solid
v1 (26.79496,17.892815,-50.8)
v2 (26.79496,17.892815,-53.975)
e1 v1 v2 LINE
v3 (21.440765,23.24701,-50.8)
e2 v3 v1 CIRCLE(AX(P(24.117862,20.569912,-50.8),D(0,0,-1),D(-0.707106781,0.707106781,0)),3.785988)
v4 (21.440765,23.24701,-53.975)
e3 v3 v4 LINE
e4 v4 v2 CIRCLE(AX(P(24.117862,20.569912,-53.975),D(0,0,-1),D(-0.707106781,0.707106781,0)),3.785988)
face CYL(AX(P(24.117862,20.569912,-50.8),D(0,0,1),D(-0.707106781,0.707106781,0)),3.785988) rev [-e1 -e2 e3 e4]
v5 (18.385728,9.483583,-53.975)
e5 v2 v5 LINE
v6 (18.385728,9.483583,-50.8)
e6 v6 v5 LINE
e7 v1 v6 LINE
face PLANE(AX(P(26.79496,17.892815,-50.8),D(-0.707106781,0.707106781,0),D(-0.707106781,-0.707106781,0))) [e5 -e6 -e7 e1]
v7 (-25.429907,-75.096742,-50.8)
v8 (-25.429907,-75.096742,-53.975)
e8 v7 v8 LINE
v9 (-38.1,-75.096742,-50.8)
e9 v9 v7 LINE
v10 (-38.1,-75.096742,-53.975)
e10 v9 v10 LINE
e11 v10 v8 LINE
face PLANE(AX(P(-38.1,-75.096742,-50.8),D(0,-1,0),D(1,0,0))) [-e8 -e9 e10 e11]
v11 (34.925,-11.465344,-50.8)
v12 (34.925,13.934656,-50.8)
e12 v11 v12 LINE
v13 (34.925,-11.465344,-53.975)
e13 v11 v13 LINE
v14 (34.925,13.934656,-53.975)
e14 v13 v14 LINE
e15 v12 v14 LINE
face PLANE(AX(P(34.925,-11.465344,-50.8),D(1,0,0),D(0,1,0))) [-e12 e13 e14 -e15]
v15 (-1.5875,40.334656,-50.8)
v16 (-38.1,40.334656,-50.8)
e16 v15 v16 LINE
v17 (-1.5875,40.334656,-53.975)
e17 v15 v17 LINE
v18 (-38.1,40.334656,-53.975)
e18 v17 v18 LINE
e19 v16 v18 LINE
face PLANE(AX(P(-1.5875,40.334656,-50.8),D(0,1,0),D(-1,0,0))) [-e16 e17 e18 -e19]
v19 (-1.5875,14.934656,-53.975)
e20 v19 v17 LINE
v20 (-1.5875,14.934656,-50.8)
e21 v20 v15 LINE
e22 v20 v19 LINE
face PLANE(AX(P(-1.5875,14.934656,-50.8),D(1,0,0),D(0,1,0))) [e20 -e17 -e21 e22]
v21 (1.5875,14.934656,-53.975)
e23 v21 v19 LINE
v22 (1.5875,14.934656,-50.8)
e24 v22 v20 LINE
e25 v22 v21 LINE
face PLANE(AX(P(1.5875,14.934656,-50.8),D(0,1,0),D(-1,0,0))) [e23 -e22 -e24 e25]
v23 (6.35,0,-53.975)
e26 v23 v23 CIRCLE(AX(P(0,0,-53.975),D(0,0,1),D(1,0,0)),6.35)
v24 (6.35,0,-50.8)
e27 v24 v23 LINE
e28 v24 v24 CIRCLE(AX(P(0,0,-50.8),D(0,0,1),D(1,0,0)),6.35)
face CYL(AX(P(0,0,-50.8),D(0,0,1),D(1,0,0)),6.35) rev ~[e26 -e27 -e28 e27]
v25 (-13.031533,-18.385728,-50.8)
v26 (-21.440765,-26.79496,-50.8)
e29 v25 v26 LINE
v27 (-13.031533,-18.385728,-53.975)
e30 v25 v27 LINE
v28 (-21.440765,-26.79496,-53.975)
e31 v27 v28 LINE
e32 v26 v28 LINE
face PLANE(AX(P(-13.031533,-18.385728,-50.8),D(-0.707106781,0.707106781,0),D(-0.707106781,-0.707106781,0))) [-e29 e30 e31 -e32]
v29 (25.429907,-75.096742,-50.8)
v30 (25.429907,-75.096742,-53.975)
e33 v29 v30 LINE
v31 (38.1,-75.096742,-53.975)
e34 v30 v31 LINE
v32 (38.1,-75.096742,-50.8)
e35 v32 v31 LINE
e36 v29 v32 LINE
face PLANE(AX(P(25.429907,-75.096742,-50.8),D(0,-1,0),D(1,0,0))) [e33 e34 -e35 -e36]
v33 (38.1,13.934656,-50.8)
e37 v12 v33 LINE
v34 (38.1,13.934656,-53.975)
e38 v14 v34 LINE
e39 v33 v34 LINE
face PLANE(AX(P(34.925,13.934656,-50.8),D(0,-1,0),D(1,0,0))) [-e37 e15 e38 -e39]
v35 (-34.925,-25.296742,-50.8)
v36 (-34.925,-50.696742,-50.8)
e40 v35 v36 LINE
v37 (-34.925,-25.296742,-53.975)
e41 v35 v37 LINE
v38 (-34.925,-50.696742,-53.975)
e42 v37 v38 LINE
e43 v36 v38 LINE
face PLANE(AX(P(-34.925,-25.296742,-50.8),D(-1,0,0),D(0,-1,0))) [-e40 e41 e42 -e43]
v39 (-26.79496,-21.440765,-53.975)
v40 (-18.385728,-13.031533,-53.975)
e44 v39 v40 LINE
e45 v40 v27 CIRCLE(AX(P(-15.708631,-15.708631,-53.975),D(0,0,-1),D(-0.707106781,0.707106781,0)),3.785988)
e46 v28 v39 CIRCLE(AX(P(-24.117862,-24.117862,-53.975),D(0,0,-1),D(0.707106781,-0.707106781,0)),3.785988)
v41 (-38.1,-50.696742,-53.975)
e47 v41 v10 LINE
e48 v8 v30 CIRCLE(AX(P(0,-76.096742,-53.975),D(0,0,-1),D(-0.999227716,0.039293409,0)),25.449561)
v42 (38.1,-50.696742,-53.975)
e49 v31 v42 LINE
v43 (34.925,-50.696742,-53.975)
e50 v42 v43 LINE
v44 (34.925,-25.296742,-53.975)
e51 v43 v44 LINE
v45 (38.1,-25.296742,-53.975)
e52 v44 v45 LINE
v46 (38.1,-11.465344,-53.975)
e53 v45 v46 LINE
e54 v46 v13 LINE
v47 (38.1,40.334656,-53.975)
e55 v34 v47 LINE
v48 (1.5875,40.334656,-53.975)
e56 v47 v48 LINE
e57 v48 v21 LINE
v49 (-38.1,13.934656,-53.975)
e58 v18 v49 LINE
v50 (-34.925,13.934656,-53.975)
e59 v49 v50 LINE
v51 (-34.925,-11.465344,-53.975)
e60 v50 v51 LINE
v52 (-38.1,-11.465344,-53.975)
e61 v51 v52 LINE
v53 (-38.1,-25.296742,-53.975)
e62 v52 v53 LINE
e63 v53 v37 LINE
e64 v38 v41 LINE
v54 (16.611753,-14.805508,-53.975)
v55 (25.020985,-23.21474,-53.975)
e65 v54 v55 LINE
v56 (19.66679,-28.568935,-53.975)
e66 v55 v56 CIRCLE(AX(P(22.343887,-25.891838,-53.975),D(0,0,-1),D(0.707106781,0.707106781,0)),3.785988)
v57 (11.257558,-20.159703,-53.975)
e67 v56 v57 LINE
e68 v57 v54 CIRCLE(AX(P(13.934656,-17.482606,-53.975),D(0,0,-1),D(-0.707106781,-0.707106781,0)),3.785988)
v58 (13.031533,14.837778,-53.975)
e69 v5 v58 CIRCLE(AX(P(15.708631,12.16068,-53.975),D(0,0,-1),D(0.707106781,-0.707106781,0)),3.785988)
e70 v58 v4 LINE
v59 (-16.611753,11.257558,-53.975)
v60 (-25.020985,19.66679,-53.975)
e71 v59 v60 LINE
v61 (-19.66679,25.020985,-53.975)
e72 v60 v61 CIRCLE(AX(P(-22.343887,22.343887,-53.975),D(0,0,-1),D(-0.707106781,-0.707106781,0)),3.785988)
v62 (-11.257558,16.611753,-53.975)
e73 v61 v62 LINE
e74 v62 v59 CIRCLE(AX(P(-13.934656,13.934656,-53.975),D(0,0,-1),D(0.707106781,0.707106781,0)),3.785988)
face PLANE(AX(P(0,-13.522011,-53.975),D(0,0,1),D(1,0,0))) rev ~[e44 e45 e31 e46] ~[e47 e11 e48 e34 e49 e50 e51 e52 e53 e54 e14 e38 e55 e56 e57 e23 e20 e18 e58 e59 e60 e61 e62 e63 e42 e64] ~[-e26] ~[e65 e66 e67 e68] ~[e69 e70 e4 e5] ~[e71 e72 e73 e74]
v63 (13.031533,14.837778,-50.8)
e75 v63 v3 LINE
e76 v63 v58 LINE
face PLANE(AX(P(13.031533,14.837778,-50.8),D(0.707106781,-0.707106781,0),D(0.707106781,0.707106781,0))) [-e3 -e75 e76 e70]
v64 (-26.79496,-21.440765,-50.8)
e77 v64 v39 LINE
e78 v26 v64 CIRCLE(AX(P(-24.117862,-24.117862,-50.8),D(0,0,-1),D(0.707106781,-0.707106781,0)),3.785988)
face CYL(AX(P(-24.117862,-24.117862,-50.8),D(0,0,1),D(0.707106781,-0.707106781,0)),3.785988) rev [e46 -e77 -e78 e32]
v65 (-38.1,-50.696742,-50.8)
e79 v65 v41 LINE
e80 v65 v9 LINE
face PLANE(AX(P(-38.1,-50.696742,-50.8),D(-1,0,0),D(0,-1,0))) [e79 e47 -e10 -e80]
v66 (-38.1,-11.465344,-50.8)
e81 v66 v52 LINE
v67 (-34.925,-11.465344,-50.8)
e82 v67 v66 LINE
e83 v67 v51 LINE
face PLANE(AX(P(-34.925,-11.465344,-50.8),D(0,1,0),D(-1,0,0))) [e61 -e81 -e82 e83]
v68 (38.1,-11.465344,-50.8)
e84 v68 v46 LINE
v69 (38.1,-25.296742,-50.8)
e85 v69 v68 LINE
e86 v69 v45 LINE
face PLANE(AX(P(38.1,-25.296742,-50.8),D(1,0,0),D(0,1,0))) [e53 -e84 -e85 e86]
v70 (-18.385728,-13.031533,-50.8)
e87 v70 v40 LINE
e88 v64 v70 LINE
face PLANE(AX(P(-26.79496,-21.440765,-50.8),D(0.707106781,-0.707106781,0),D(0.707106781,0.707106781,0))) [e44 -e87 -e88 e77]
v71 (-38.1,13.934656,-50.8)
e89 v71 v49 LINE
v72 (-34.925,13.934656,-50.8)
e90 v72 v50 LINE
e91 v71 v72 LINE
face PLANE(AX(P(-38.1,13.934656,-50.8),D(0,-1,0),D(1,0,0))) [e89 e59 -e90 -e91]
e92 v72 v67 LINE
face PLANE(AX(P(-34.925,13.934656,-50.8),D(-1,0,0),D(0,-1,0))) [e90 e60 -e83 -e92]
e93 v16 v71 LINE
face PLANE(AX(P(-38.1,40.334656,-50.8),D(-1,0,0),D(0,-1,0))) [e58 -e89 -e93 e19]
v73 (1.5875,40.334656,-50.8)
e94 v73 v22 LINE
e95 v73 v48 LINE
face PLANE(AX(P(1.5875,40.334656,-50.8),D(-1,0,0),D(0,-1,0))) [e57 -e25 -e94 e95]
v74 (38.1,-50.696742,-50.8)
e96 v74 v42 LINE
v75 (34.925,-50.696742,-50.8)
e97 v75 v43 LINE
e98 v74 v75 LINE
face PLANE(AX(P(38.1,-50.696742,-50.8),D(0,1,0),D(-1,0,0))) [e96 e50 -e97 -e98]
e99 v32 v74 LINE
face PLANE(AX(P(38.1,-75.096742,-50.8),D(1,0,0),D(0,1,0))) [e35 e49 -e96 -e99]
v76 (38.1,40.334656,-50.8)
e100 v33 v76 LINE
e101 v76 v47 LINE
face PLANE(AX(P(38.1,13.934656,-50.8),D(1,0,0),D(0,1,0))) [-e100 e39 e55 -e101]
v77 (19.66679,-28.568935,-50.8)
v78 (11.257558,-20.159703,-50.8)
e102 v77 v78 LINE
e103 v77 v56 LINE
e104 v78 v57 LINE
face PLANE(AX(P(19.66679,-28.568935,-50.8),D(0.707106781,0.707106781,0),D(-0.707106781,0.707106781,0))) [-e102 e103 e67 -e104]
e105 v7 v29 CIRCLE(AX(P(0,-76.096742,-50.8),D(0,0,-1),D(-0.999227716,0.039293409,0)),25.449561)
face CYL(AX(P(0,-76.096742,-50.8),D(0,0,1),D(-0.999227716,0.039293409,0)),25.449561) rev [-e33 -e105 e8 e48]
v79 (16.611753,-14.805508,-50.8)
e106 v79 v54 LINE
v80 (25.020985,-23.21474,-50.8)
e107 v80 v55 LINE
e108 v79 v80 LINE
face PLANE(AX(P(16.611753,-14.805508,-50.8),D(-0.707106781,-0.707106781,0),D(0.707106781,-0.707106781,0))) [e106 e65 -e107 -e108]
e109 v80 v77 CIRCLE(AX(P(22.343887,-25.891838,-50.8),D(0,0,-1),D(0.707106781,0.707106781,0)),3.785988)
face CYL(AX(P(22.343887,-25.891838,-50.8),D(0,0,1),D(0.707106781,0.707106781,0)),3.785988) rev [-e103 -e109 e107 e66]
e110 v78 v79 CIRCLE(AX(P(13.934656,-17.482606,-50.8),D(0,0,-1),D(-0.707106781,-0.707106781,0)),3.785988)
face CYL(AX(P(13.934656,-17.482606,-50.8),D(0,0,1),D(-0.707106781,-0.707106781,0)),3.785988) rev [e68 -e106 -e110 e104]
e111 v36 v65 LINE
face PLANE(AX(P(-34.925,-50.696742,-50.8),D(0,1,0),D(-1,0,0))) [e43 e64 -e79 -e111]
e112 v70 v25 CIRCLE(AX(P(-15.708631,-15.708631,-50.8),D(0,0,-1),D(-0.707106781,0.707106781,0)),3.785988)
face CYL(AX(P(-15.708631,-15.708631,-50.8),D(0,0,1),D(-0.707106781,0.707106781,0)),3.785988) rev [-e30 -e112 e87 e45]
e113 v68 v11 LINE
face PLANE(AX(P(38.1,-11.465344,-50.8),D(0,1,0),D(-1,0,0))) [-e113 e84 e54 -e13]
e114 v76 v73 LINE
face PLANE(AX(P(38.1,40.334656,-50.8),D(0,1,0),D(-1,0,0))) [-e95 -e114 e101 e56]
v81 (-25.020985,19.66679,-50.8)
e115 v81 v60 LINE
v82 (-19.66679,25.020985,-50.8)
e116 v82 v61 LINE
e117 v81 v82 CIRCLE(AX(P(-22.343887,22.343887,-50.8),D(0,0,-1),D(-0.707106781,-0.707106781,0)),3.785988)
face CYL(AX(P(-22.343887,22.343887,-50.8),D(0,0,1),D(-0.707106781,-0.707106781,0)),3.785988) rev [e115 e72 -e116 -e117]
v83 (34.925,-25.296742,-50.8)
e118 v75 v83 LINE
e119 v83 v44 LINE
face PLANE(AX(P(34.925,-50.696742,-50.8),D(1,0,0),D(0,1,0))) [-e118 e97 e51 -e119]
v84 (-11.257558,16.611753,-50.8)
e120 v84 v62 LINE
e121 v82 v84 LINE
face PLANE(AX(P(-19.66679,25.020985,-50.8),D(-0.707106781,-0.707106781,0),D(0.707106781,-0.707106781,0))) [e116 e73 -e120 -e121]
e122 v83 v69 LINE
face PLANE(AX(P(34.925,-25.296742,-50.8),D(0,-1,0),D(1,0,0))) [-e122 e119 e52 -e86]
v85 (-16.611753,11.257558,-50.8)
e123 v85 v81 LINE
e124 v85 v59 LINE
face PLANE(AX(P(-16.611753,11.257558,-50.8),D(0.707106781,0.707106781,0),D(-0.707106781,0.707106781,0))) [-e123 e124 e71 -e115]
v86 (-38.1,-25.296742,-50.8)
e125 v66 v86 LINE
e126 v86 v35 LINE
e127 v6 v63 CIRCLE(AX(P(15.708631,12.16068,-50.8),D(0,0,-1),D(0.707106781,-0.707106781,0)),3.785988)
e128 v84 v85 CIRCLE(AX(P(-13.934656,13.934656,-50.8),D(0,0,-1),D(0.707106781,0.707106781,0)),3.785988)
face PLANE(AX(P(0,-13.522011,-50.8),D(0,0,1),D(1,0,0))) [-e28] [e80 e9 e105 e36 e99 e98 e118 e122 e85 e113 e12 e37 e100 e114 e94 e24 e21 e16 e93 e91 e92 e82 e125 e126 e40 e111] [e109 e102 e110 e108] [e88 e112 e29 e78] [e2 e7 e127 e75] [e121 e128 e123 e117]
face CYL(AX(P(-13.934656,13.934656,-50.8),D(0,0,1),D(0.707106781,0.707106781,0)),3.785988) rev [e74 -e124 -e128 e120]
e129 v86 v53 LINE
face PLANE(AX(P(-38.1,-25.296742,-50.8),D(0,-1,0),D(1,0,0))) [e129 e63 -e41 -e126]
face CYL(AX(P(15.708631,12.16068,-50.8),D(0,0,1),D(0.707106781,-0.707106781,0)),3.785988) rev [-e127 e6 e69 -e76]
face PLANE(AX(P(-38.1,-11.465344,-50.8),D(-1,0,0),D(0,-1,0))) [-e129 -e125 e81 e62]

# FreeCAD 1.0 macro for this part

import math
import FreeCAD as App
import Part
import Sketcher
from FreeCAD import Vector
Q = App.Units.Quantity

doc = App.newDocument("Part")
body = doc.addObject("PartDesign::Body", "Body")

# Sketch on XY plane
sketch1 = body.newObject("Sketcher::SketchObject", "Sketch")
sketch1.AttachmentSupport = (doc.getObject("XY_Plane"), [""])
sketch1.MapMode = "FlatFace"
sketch1.AttachmentOffset = App.Placement(Vector(0, 0, -2 * 25.4), App.Rotation())
sketch1.addGeometry([
    Part.LineSegment(Vector(1.6, 14.9, 0), Vector(-1.6, 14.9, 0)),  # 0
    Part.LineSegment(Vector(-1.6, 14.9, 0), Vector(-1.6, 40.3, 0)),  # 1
    Part.LineSegment(Vector(-1.6, 40.3, 0), Vector(-38.1, 40.3, 0)),  # 2
    Part.LineSegment(Vector(-38.1, 40.3, 0), Vector(-38.1, 13.9, 0)),  # 3
    Part.LineSegment(Vector(-38.1, 13.9, 0), Vector(-34.9, 13.9, 0)),  # 4
    Part.LineSegment(Vector(-34.9, 13.9, 0), Vector(-34.9, -11.5, 0)),  # 5
    Part.LineSegment(Vector(-34.9, -11.5, 0), Vector(-38.1, -11.5, 0)),  # 6
    Part.LineSegment(Vector(-38.1, -11.5, 0), Vector(-38.1, -25.3, 0)),  # 7
    Part.LineSegment(Vector(-38.1, -25.3, 0), Vector(-34.9, -25.3, 0)),  # 8
    Part.LineSegment(Vector(-34.9, -25.3, 0), Vector(-34.9, -50.7, 0)),  # 9
    Part.LineSegment(Vector(-34.9, -50.7, 0), Vector(-38.1, -50.7, 0)),  # 10
    Part.LineSegment(Vector(-38.1, -50.7, 0), Vector(-38.1, -75.1, 0)),  # 11
    Part.LineSegment(Vector(-38.1, -75.1, 0), Vector(-25.4, -75.1, 0)),  # 12
    Part.ArcOfCircle(Part.Circle(Vector(0, -76.1, 0), Vector(0, 0, 1), 25.4), math.radians(2), math.radians(178)),  # 13
    Part.LineSegment(Vector(25.4, -75.1, 0), Vector(38.1, -75.1, 0)),  # 14
    Part.LineSegment(Vector(38.1, -75.1, 0), Vector(38.1, -50.7, 0)),  # 15
    Part.LineSegment(Vector(38.1, -50.7, 0), Vector(34.9, -50.7, 0)),  # 16
    Part.LineSegment(Vector(34.9, -50.7, 0), Vector(34.9, -25.3, 0)),  # 17
    Part.LineSegment(Vector(34.9, -25.3, 0), Vector(38.1, -25.3, 0)),  # 18
    Part.LineSegment(Vector(38.1, -25.3, 0), Vector(38.1, -11.5, 0)),  # 19
    Part.LineSegment(Vector(38.1, -11.5, 0), Vector(34.9, -11.5, 0)),  # 20
    Part.LineSegment(Vector(34.9, -11.5, 0), Vector(34.9, 13.9, 0)),  # 21
    Part.LineSegment(Vector(34.9, 13.9, 0), Vector(38.1, 13.9, 0)),  # 22
    Part.LineSegment(Vector(38.1, 13.9, 0), Vector(38.1, 40.3, 0)),  # 23
    Part.LineSegment(Vector(38.1, 40.3, 0), Vector(1.6, 40.3, 0)),  # 24
    Part.LineSegment(Vector(1.6, 40.3, 0), Vector(1.6, 14.9, 0)),  # 25
    Part.LineSegment(Vector(-13, -18.4, 0), Vector(-21.4, -26.8, 0)),  # 26
    Part.ArcOfCircle(Part.Circle(Vector(-24.1, -24.1, 0), Vector(0, 0, 1), 3.8), math.radians(135), math.radians(315)),  # 27
    Part.LineSegment(Vector(-26.8, -21.4, 0), Vector(-18.4, -13, 0)),  # 28
    Part.ArcOfCircle(Part.Circle(Vector(-15.7, -15.7, 0), Vector(0, 0, 1), 3.8), math.radians(-45), math.radians(135)),  # 29
    Part.LineSegment(Vector(16.6, -14.8, 0), Vector(25, -23.2, 0)),  # 30
    Part.ArcOfCircle(Part.Circle(Vector(22.3, -25.9, 0), Vector(0, 0, 1), 3.8), math.radians(-135), math.radians(45)),  # 31
    Part.LineSegment(Vector(19.7, -28.6, 0), Vector(11.3, -20.2, 0)),  # 32
    Part.ArcOfCircle(Part.Circle(Vector(13.9, -17.5, 0), Vector(0, 0, 1), 3.8), math.radians(45), math.radians(225)),  # 33
    Part.LineSegment(Vector(-16.6, 11.3, 0), Vector(-25, 19.7, 0)),  # 34
    Part.ArcOfCircle(Part.Circle(Vector(-22.3, 22.3, 0), Vector(0, 0, 1), 3.8), math.radians(45), math.radians(225)),  # 35
    Part.LineSegment(Vector(-19.7, 25, 0), Vector(-11.3, 16.6, 0)),  # 36
    Part.ArcOfCircle(Part.Circle(Vector(-13.9, 13.9, 0), Vector(0, 0, 1), 3.8), math.radians(-135), math.radians(45)),  # 37
    Part.Circle(Vector(0, 0, 0), Vector(0, 0, 1), 6.3),  # 38
    Part.LineSegment(Vector(13, 14.8, 0), Vector(21.4, 23.2, 0)),  # 39
    Part.ArcOfCircle(Part.Circle(Vector(24.1, 20.6, 0), Vector(0, 0, 1), 3.8), math.radians(-45), math.radians(135)),  # 40
    Part.LineSegment(Vector(26.8, 17.9, 0), Vector(18.4, 9.5, 0)),  # 41
    Part.ArcOfCircle(Part.Circle(Vector(15.7, 12.2, 0), Vector(0, 0, 1), 3.8), math.radians(135), math.radians(315)),  # 42
], False)
sketch1.addConstraint([
    Sketcher.Constraint("Coincident", 0, 2, 1, 1),
    Sketcher.Constraint("Coincident", 1, 2, 2, 1),
    Sketcher.Constraint("Coincident", 2, 2, 3, 1),
    Sketcher.Constraint("Coincident", 3, 2, 4, 1),
    Sketcher.Constraint("Coincident", 4, 2, 5, 1),
    Sketcher.Constraint("Coincident", 5, 2, 6, 1),
    Sketcher.Constraint("Coincident", 6, 2, 7, 1),
    Sketcher.Constraint("Coincident", 7, 2, 8, 1),
    Sketcher.Constraint("Coincident", 8, 2, 9, 1),
    Sketcher.Constraint("Coincident", 9, 2, 10, 1),
    Sketcher.Constraint("Coincident", 10, 2, 11, 1),
    Sketcher.Constraint("Coincident", 11, 2, 12, 1),
    Sketcher.Constraint("Coincident", 12, 2, 13, 2),
    Sketcher.Constraint("Coincident", 13, 1, 14, 1),
    Sketcher.Constraint("Coincident", 14, 2, 15, 1),
    Sketcher.Constraint("Coincident", 15, 2, 16, 1),
    Sketcher.Constraint("Coincident", 16, 2, 17, 1),
    Sketcher.Constraint("Coincident", 17, 2, 18, 1),
    Sketcher.Constraint("Coincident", 18, 2, 19, 1),
    Sketcher.Constraint("Coincident", 19, 2, 20, 1),
    Sketcher.Constraint("Coincident", 20, 2, 21, 1),
    Sketcher.Constraint("Coincident", 21, 2, 22, 1),
    Sketcher.Constraint("Coincident", 22, 2, 23, 1),
    Sketcher.Constraint("Coincident", 23, 2, 24, 1),
    Sketcher.Constraint("Coincident", 24, 2, 25, 1),
    Sketcher.Constraint("Coincident", 25, 2, 0, 1),
    Sketcher.Constraint("Tangent", 26, 2, 27, 2),
    Sketcher.Constraint("Tangent", 27, 1, 28, 1),
    Sketcher.Constraint("Tangent", 28, 2, 29, 2),
    Sketcher.Constraint("Tangent", 29, 1, 26, 1),
    Sketcher.Constraint("Tangent", 30, 2, 31, 2),
    Sketcher.Constraint("Tangent", 31, 1, 32, 1),
    Sketcher.Constraint("Tangent", 32, 2, 33, 2),
    Sketcher.Constraint("Tangent", 33, 1, 30, 1),
    Sketcher.Constraint("Tangent", 34, 2, 35, 2),
    Sketcher.Constraint("Tangent", 35, 1, 36, 1),
    Sketcher.Constraint("Tangent", 36, 2, 37, 2),
    Sketcher.Constraint("Tangent", 37, 1, 34, 1),
    Sketcher.Constraint("Tangent", 39, 2, 40, 2),
    Sketcher.Constraint("Tangent", 40, 1, 41, 1),
    Sketcher.Constraint("Tangent", 41, 2, 42, 2),
    Sketcher.Constraint("Tangent", 42, 1, 39, 1),
    Sketcher.Constraint("Horizontal", 0),
    Sketcher.Constraint("Vertical", 1),
    Sketcher.Constraint("Horizontal", 2),
    Sketcher.Constraint("Vertical", 3),
    Sketcher.Constraint("Horizontal", 4),
    Sketcher.Constraint("Vertical", 5),
    Sketcher.Constraint("Horizontal", 6),
    Sketcher.Constraint("Vertical", 7),
    Sketcher.Constraint("Horizontal", 8),
    Sketcher.Constraint("Vertical", 9),
    Sketcher.Constraint("Horizontal", 10),
    Sketcher.Constraint("Vertical", 11),
    Sketcher.Constraint("Horizontal", 12),
    Sketcher.Constraint("Horizontal", 14),
    Sketcher.Constraint("Vertical", 15),
    Sketcher.Constraint("Horizontal", 16),
    Sketcher.Constraint("Vertical", 17),
    Sketcher.Constraint("Horizontal", 18),
    Sketcher.Constraint("Vertical", 19),
    Sketcher.Constraint("Horizontal", 20),
    Sketcher.Constraint("Vertical", 21),
    Sketcher.Constraint("Horizontal", 22),
    Sketcher.Constraint("Vertical", 23),
    Sketcher.Constraint("Horizontal", 24),
    Sketcher.Constraint("Vertical", 25),
    Sketcher.Constraint("Coincident", 38, 3, -1, 1),
    Sketcher.Constraint("Equal", 27, 29),
    Sketcher.Constraint("Equal", 29, 31),
    Sketcher.Constraint("Equal", 31, 33),
    Sketcher.Constraint("Equal", 33, 35),
    Sketcher.Constraint("Equal", 35, 37),
    Sketcher.Constraint("Equal", 37, 40),
    Sketcher.Constraint("Equal", 40, 42),
    Sketcher.Constraint("Symmetric", 12, 2, 13, 1, -2),
    Sketcher.Constraint("Symmetric", 10, 2, 15, 2, -2),
    Sketcher.Constraint("Symmetric", 8, 2, 17, 2, -2),
    Sketcher.Constraint("Symmetric", 6, 2, 19, 2, -2),
    Sketcher.Constraint("Symmetric", 4, 2, 21, 2, -2),
    Sketcher.Constraint("Symmetric", 2, 2, 23, 2, -2),
    Sketcher.Constraint("Perpendicular", 28, 30),
    Sketcher.Constraint("Parallel", 32, 34),
    Sketcher.Constraint("Perpendicular", 36, 39),
    Sketcher.Constraint("Horizontal", 37, 3, 3, 2),
    Sketcher.Constraint("Vertical", 3, 2, 6, 2),
    Sketcher.Constraint("Vertical", 5, 2, 8, 2),
    Sketcher.Constraint("Vertical", 7, 2, 10, 2),
    Sketcher.Constraint("Equal", 0, 4),
    Sketcher.Constraint("Equal", 2, 24),
    Sketcher.Constraint("Equal", 1, 5),
    Sketcher.Constraint("Equal", 5, 9),
    Sketcher.Constraint("Equal", 28, 30),
    Sketcher.Constraint("Equal", 32, 34),
    Sketcher.Constraint("Equal", 36, 39),
    Sketcher.Constraint("Diameter", 38, Q("0.5 in")),
    Sketcher.Constraint("DistanceY", 1, 1, 1, 2, Q("1 in")),
    Sketcher.Constraint("Angle", 26, Q("-135 deg")),
    Sketcher.Constraint("DistanceY", 13, 3, 15, 2, Q("1 in")),
    Sketcher.Constraint("DistanceX", 2, 2, -1, 1, Q("1.5 in")),
    Sketcher.Constraint("DistanceX", 0, 2, 0, 1, Q("0.125 in")),
    Sketcher.Constraint("Radius", 13, 25.449561),
    Sketcher.Constraint("DistanceY", 3, 2, 3, 1, 26.4),
    Sketcher.Constraint("DistanceY", 11, 2, 11, 1, 24.4),
    Sketcher.Constraint("Radius", 27, 3.785988),
    Sketcher.Constraint("DistanceY", 33, 3, 37, 3, Q("1.2369 in")),
    Sketcher.Constraint("DistanceY", 17, 2, 30, 2, 2.082002),
    Sketcher.Constraint("Distance", 26, 11.89245),
    Sketcher.Constraint("DistanceY", 13, 3, -1, 1, 76.096742),
    Sketcher.Constraint("DistanceX", 29, 3, -1, 1, 15.708631),
    Sketcher.Constraint("DistanceY", 29, 3, -1, 1, 15.708631),
    Sketcher.Constraint("DistanceX", -1, 1, 42, 3, 15.708631),
    Sketcher.Constraint("DistanceY", -1, 1, 42, 3, 12.16068),
    Sketcher.Constraint("DistanceX", -1, 1, 31, 1, 19.66679),
    Sketcher.Constraint("DistanceX", 35, 1, -1, 1, 19.66679),
])
pad1 = body.newObject("PartDesign::Pad", "Pad")
pad1.Profile = sketch1
pad1.Length = Q("0.125 in")
pad1.Reversed = True

doc.recompute()
